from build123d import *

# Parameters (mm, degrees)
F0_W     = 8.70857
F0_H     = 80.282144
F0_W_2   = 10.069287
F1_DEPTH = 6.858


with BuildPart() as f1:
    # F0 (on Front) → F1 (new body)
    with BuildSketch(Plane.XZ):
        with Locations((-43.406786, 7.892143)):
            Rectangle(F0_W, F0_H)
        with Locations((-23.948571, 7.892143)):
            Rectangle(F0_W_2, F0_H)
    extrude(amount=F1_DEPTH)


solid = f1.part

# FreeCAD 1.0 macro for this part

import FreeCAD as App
import Part
import Sketcher
from FreeCAD import Vector
Q = App.Units.Quantity

doc = App.newDocument("Part")
params = doc.addObject("Spreadsheet::Sheet", "Params")
for row, (alias, value) in enumerate([
    ("pad1_length", "0.27 in"),
], start=1):
    params.set(f"A{row}", alias)
    params.set(f"B{row}", "=" + value)
    params.setAlias(f"B{row}", alias)

body = doc.addObject("PartDesign::Body", "Body")
body.AllowCompound = True

sketch1 = body.newObject("Sketcher::SketchObject", "Sketch")
sketch1.AttachmentSupport = (doc.getObject("XZ_Plane"), [""])
sketch1.MapMode = "FlatFace"
sketch1.addGeometry([
    Part.LineSegment(Vector(-48, 48, 0), Vector(-48, -32, 0)),
    Part.LineSegment(Vector(-48, -32, 0), Vector(-39, -32, 0)),
    Part.LineSegment(Vector(-39, -32, 0), Vector(-39, 48, 0)),
    Part.LineSegment(Vector(-39, 48, 0), Vector(-48, 48, 0)),
    Part.LineSegment(Vector(-29, 48, 0), Vector(-29, -32, 0)),
    Part.LineSegment(Vector(-29, -32, 0), Vector(-19, -32, 0)),
    Part.LineSegment(Vector(-19, -32, 0), Vector(-19, 48, 0)),
    Part.LineSegment(Vector(-19, 48, 0), Vector(-29, 48, 0)),
], False)
sketch1.addConstraint([
    Sketcher.Constraint("Coincident", 0, 2, 1, 1),
    Sketcher.Constraint("Coincident", 1, 2, 2, 1),
    Sketcher.Constraint("Coincident", 2, 2, 3, 1),
    Sketcher.Constraint("Coincident", 3, 2, 0, 1),
    Sketcher.Constraint("Coincident", 4, 2, 5, 1),
    Sketcher.Constraint("Coincident", 5, 2, 6, 1),
    Sketcher.Constraint("Coincident", 6, 2, 7, 1),
    Sketcher.Constraint("Coincident", 7, 2, 4, 1),
    Sketcher.Constraint("Vertical", 0),
    Sketcher.Constraint("Horizontal", 1),
    Sketcher.Constraint("Vertical", 2),
    Sketcher.Constraint("Horizontal", 3),
    Sketcher.Constraint("Vertical", 4),
    Sketcher.Constraint("Horizontal", 5),
    Sketcher.Constraint("Vertical", 6),
    Sketcher.Constraint("Horizontal", 7),
    Sketcher.Constraint("Horizontal", 1, 2, 4, 2),
    Sketcher.Constraint("Horizontal", 3, 2, 6, 2),
    Sketcher.Constraint("DistanceX", 1, 2, -1, 1, Q("1.5375 in")),
    Sketcher.Constraint("DistanceX", 1, 1, 1, 2, 8.70857),
    Sketcher.Constraint("DistanceX", 5, 1, 5, 2, 10.069287),
    Sketcher.Constraint("DistanceY", 0, 2, 0, 1, 80.282144),
    Sketcher.Constraint("DistanceY", 0, 2, -1, 1, 32.248929),
    Sketcher.Constraint("DistanceX", 4, 2, -1, 1, 28.983214),
])
pad1 = body.newObject("PartDesign::Pad", "Pad")
pad1.Profile = sketch1
pad1.setExpression("Length", "Params.pad1_length")

doc.recompute()
